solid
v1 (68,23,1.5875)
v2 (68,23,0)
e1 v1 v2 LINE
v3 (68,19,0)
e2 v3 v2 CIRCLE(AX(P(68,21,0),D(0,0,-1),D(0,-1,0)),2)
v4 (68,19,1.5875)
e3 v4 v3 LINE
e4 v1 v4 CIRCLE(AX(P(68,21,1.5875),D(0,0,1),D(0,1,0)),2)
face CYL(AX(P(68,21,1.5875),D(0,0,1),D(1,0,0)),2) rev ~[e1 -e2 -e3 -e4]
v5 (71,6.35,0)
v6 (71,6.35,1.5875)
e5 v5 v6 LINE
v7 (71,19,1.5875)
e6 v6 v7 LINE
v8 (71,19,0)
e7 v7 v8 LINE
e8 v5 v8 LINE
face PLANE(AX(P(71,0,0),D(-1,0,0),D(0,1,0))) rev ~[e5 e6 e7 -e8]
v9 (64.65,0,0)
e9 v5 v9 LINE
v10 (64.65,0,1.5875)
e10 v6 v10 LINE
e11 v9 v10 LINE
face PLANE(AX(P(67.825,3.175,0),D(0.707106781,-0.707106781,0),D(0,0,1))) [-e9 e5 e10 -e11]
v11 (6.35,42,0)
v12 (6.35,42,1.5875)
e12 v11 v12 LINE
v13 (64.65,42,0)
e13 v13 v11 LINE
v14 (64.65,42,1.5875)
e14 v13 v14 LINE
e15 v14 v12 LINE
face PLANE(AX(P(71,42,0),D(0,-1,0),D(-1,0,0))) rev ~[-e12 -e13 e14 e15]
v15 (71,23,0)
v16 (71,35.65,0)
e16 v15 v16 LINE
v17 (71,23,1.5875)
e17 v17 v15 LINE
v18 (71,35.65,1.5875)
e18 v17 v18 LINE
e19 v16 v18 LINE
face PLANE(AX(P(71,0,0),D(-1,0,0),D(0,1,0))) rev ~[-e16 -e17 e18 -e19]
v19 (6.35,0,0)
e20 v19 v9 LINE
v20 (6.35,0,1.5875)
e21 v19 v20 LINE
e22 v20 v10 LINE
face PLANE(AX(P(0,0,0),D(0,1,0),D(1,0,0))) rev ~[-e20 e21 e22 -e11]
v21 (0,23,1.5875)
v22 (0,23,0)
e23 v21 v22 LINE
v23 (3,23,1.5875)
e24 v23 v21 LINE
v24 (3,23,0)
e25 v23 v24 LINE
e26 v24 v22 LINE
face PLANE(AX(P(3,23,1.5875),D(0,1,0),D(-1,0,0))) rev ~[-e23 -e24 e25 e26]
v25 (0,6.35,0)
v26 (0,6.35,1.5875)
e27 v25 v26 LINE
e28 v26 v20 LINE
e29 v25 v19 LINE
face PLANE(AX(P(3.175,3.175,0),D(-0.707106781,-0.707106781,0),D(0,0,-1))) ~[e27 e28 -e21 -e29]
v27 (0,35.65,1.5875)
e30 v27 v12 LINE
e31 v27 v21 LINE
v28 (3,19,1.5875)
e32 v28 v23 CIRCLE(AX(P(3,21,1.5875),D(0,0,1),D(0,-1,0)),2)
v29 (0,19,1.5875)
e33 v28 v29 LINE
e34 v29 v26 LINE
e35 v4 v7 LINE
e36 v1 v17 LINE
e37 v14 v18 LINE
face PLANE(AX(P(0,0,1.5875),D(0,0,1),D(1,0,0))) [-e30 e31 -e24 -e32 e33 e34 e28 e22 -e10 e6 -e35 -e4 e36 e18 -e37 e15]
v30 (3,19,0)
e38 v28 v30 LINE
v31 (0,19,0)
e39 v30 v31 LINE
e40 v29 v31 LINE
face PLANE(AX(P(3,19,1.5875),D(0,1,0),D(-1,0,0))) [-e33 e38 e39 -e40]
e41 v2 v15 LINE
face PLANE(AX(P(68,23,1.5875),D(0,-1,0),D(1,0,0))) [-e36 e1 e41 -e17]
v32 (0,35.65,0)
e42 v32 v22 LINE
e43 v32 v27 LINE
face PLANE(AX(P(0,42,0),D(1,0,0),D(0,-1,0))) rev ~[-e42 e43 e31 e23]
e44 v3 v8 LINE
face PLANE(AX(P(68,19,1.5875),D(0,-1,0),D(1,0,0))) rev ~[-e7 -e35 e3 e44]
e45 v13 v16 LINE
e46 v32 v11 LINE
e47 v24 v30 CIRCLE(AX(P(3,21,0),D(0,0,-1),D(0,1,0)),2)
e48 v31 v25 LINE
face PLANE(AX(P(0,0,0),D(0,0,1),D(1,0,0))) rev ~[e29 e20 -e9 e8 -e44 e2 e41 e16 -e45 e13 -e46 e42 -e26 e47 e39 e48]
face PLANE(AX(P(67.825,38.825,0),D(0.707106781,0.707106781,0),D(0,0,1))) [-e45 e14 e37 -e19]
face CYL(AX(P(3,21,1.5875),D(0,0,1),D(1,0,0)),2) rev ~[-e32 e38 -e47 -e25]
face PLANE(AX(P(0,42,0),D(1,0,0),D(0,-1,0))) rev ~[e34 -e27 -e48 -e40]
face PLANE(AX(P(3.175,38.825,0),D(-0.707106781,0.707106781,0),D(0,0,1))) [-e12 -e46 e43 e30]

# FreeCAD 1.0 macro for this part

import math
import FreeCAD as App
import Part
import Sketcher
from FreeCAD import Vector


def edges_at(feature, points):
    """Names of the edges that pass closest to the given points."""
    edges = feature.Shape.Edges
    near = lambda p: min(range(len(edges)), key=lambda i: edges[i].distToShape(Part.Vertex(*p))[0])
    return sorted({f"Edge{near(p) + 1}" for p in points})

doc = App.newDocument("Part")
body = doc.addObject("PartDesign::Body", "Body")

# Sketch on XY plane
sketch1 = body.newObject("Sketcher::SketchObject", "Sketch")
sketch1.AttachmentSupport = (doc.getObject("XY_Plane"), [""])
sketch1.MapMode = "FlatFace"
sketch1.addGeometry(Part.LineSegment(Vector(0, 42, 0), Vector(0, 0, 0)), False)
sketch1.addGeometry(Part.LineSegment(Vector(0, 0, 0), Vector(71, 0, 0)), False)
sketch1.addGeometry(Part.LineSegment(Vector(71, 0, 0), Vector(71, 42, 0)), False)
sketch1.addGeometry(Part.LineSegment(Vector(71, 42, 0), Vector(0, 42, 0)), False)
sketch1.addConstraint(Sketcher.Constraint("Coincident", 0, 2, 1, 1))
sketch1.addConstraint(Sketcher.Constraint("Coincident", 1, 2, 2, 1))
sketch1.addConstraint(Sketcher.Constraint("Coincident", 2, 2, 3, 1))
sketch1.addConstraint(Sketcher.Constraint("Coincident", 3, 2, 0, 1))
sketch1.addConstraint(Sketcher.Constraint("Vertical", 0))
sketch1.addConstraint(Sketcher.Constraint("Horizontal", 1))
sketch1.addConstraint(Sketcher.Constraint("Vertical", 2))
sketch1.addConstraint(Sketcher.Constraint("Horizontal", 3))
sketch1.addConstraint(Sketcher.Constraint("Coincident", 0, 2, -1, 1))
sketch1.addConstraint(Sketcher.Constraint("DistanceX", 1, 1, 1, 2, 71.0))
sketch1.addConstraint(Sketcher.Constraint("DistanceY", 0, 2, 0, 1, 42.0))
pad1 = body.newObject("PartDesign::Pad", "Pad")
pad1.Profile = sketch1
pad1.Length = 1.5875
doc.recompute()

chamfer = body.newObject("PartDesign::Chamfer", "Chamfer")
chamfer.Base = (pad1, edges_at(pad1, [
    (0, 42, 0.794),
    (0, 0, 0.794),
    (71, 0, 0.794),
    (71, 42, 0.794),
]))
chamfer.Size = 6.35

# Sketch on XY plane
sketch2 = body.newObject("Sketcher::SketchObject", "Sketch001")
sketch2.AttachmentSupport = (doc.getObject("XY_Plane"), [""])
sketch2.MapMode = "FlatFace"
sketch2.AttachmentOffset = App.Placement(Vector(0, 0, 1.5875), App.Rotation())
sketch2.addGeometry(Part.LineSegment(Vector(0, 23, 0), Vector(0, 19, 0)), False)
sketch2.addGeometry(Part.LineSegment(Vector(0, 19, 0), Vector(3, 19, 0)), False)
sketch2.addGeometry(Part.ArcOfCircle(Part.Circle(Vector(3, 21, 0), Vector(0, 0, 1), 2), math.radians(-90), math.radians(90)), False)
sketch2.addGeometry(Part.LineSegment(Vector(3, 23, 0), Vector(0, 23, 0)), False)
sketch2.addGeometry(Part.LineSegment(Vector(71, 19, 0), Vector(71, 23, 0)), False)
sketch2.addGeometry(Part.LineSegment(Vector(71, 23, 0), Vector(68, 23, 0)), False)
sketch2.addGeometry(Part.ArcOfCircle(Part.Circle(Vector(68, 21, 0), Vector(0, 0, 1), 2), math.radians(90), math.radians(270)), False)
sketch2.addGeometry(Part.LineSegment(Vector(68, 19, 0), Vector(71, 19, 0)), False)
sketch2.addConstraint(Sketcher.Constraint("Coincident", 0, 2, 1, 1))
sketch2.addConstraint(Sketcher.Constraint("Tangent", 1, 2, 2, 1))
sketch2.addConstraint(Sketcher.Constraint("Tangent", 2, 2, 3, 1))
sketch2.addConstraint(Sketcher.Constraint("Coincident", 3, 2, 0, 1))
sketch2.addConstraint(Sketcher.Constraint("Coincident", 4, 2, 5, 1))
sketch2.addConstraint(Sketcher.Constraint("Tangent", 5, 2, 6, 1))
sketch2.addConstraint(Sketcher.Constraint("Tangent", 6, 2, 7, 1))
sketch2.addConstraint(Sketcher.Constraint("Coincident", 7, 2, 4, 1))
sketch2.addConstraint(Sketcher.Constraint("Vertical", 0))
sketch2.addConstraint(Sketcher.Constraint("Horizontal", 1))
sketch2.addConstraint(Sketcher.Constraint("Horizontal", 3))
sketch2.addConstraint(Sketcher.Constraint("Vertical", 4))
sketch2.addConstraint(Sketcher.Constraint("Horizontal", 5))
sketch2.addConstraint(Sketcher.Constraint("Horizontal", 7))
sketch2.addConstraint(Sketcher.Constraint("Equal", 2, 6))
sketch2.addConstraint(Sketcher.Constraint("PointOnObject", 0, 2, -2))
sketch2.addConstraint(Sketcher.Constraint("Horizontal", 2, 3, 6, 3))
sketch2.addConstraint(Sketcher.Constraint("Equal", 3, 5))
sketch2.addConstraint(Sketcher.Constraint("Radius", 2, 2.0))
sketch2.addConstraint(Sketcher.Constraint("DistanceX", 1, 1, 1, 2, 3.0))
sketch2.addConstraint(Sketcher.Constraint("DistanceY", -1, 1, 2, 3, 21.0))
sketch2.addConstraint(Sketcher.Constraint("DistanceX", -1, 1, 6, 3, 68.0))
pocket1 = body.newObject("PartDesign::Pocket", "Pocket")
pocket1.Profile = sketch2
pocket1.Length = 1.5875

doc.recompute()
